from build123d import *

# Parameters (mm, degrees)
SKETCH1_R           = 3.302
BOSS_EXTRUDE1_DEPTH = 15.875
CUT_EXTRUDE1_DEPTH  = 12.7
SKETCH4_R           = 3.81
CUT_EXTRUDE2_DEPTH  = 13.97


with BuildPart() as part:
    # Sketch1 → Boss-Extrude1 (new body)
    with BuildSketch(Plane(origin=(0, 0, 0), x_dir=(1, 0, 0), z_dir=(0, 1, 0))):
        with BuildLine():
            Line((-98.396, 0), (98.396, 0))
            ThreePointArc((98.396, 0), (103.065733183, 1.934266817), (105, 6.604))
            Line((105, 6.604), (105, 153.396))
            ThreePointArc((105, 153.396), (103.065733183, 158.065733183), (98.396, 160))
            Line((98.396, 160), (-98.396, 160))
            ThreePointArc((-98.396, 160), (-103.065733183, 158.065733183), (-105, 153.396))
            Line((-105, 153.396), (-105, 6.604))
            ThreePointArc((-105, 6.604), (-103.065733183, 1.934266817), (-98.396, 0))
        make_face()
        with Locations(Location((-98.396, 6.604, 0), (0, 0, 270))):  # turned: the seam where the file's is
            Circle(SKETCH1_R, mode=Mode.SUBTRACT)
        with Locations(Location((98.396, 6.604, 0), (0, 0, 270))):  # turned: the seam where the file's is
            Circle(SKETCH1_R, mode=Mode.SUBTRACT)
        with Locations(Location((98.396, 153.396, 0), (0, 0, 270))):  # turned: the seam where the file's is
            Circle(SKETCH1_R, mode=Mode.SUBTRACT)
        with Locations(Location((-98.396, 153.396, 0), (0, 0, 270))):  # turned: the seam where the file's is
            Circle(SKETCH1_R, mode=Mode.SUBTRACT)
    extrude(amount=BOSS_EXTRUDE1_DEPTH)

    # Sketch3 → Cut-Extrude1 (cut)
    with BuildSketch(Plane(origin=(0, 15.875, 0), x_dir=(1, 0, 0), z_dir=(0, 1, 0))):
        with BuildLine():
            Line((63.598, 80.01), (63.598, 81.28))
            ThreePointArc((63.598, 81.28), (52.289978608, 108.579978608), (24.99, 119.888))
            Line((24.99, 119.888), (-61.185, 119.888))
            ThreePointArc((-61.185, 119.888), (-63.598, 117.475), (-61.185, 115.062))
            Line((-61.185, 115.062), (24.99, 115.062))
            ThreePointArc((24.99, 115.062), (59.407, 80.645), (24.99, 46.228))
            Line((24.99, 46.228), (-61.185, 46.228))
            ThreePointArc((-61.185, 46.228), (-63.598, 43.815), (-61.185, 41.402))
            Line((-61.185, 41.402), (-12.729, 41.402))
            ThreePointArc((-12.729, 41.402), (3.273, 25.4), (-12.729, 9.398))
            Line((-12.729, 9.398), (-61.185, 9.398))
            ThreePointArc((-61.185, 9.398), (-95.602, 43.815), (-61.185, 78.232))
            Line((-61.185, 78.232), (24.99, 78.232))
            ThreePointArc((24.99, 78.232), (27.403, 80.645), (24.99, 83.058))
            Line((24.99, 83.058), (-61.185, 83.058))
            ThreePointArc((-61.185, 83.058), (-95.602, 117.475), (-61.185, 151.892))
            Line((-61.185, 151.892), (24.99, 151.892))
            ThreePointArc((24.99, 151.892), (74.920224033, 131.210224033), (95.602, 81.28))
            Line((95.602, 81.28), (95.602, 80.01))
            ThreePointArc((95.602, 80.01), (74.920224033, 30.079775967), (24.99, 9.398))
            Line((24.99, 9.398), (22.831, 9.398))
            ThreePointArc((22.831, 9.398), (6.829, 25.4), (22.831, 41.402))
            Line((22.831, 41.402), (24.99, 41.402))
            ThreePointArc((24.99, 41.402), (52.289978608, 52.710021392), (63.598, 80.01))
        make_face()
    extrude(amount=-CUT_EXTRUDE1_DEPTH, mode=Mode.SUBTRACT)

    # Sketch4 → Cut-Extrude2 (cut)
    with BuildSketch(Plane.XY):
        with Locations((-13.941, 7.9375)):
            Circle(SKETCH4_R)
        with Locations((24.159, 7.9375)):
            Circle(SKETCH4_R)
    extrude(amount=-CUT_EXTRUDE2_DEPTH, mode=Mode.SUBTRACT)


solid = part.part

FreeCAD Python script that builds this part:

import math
import FreeCAD as App
import Part
import Sketcher
Q = App.Units.Quantity

doc = App.newDocument("Part")
body = doc.addObject("PartDesign::Body", "Body")

sketch1 = body.newObject("Sketcher::SketchObject", "Sketch")
sketch1.AttachmentSupport = (doc.getObject("XZ_Plane"), [""])
sketch1.MapMode = "FlatFace"
sketch1.addGeometry([
    Part.LineSegment(App.Vector(-98.4, 0, 0), App.Vector(98.4, 0, 0)),
    Part.ArcOfCircle(Part.Circle(App.Vector(98.4, -6.6, 0), App.Vector(0, 0, 1), 6.6), math.radians(0), math.radians(90)),
    Part.LineSegment(App.Vector(105, -6.6, 0), App.Vector(105, -153.4, 0)),
    Part.ArcOfCircle(Part.Circle(App.Vector(98.4, -153.4, 0), App.Vector(0, 0, 1), 6.6), math.radians(-90), math.radians(0)),
    Part.LineSegment(App.Vector(98.4, -160, 0), App.Vector(-98.4, -160, 0)),
    Part.ArcOfCircle(Part.Circle(App.Vector(-98.4, -153.4, 0), App.Vector(0, 0, 1), 6.6), math.radians(180), math.radians(270)),
    Part.LineSegment(App.Vector(-105, -153.4, 0), App.Vector(-105, -6.6, 0)),
    Part.ArcOfCircle(Part.Circle(App.Vector(-98.4, -6.6, 0), App.Vector(0, 0, 1), 6.6), math.radians(90), math.radians(180)),
    Part.Circle(App.Vector(-98.4, -6.6, 0), App.Vector(0, 0, 1), 3.3),
    Part.Circle(App.Vector(98.4, -6.6, 0), App.Vector(0, 0, 1), 3.3),
    Part.Circle(App.Vector(-98.4, -153.4, 0), App.Vector(0, 0, 1), 3.3),
    Part.Circle(App.Vector(98.4, -153.4, 0), App.Vector(0, 0, 1), 3.3),
], False)
sketch1.addConstraint([
    Sketcher.Constraint("Tangent", 0, 2, 1, 2),
    Sketcher.Constraint("Tangent", 1, 1, 2, 1),
    Sketcher.Constraint("Tangent", 2, 2, 3, 2),
    Sketcher.Constraint("Tangent", 3, 1, 4, 1),
    Sketcher.Constraint("Tangent", 4, 2, 5, 2),
    Sketcher.Constraint("Tangent", 5, 1, 6, 1),
    Sketcher.Constraint("Tangent", 6, 2, 7, 2),
    Sketcher.Constraint("Tangent", 7, 1, 0, 1),
    Sketcher.Constraint("Horizontal", 0),
    Sketcher.Constraint("Vertical", 2),
    Sketcher.Constraint("Horizontal", 4),
    Sketcher.Constraint("Vertical", 6),
    Sketcher.Constraint("Coincident", 8, 3, 7, 3),
    Sketcher.Constraint("Coincident", 9, 3, 1, 3),
    Sketcher.Constraint("Coincident", 10, 3, 5, 3),
    Sketcher.Constraint("Coincident", 11, 3, 3, 3),
    Sketcher.Constraint("Equal", 1, 3),
    Sketcher.Constraint("Equal", 3, 5),
    Sketcher.Constraint("Equal", 5, 7),
    Sketcher.Constraint("Equal", 8, 9),
    Sketcher.Constraint("Equal", 9, 10),
    Sketcher.Constraint("Equal", 10, 11),
    Sketcher.Constraint("Symmetric", 0, 2, 7, 1, -1, 1),
    Sketcher.Constraint("Diameter", 8, Q("0.26 in")),
    Sketcher.Constraint("Radius", 1, Q("0.26 in")),
    Sketcher.Constraint("DistanceX", 0, 1, 0, 2, Q("196.792 mm")),
    Sketcher.Constraint("DistanceY", 2, 2, 2, 1, Q("146.792 mm")),
])
pad1 = body.newObject("PartDesign::Pad", "Pad")
pad1.Profile = sketch1
pad1.Length = Q("0.625 in")
pad1.Reversed = True

sketch2 = body.newObject("Sketcher::SketchObject", "Sketch001")
sketch2.AttachmentSupport = (doc.getObject("XZ_Plane"), [""])
sketch2.MapMode = "FlatFace"
sketch2.AttachmentOffset = App.Placement(App.Vector(0, 0, -0.625 * 25.4), App.Rotation())
sketch2.addGeometry([
    Part.LineSegment(App.Vector(63.6, -81.3, 0), App.Vector(63.6, -80, 0)),
    Part.ArcOfCircle(Part.Circle(App.Vector(25, -80, 0), App.Vector(0, 0, 1), 38.6), math.radians(0), math.radians(90)),
    Part.LineSegment(App.Vector(25, -41.4, 0), App.Vector(22.8, -41.4, 0)),
    Part.ArcOfCircle(Part.Circle(App.Vector(22.8, -25.4, 0), App.Vector(0, 0, 1), 16), math.radians(90), math.radians(270)),
    Part.LineSegment(App.Vector(22.8, -9.4, 0), App.Vector(25, -9.4, 0)),
    Part.ArcOfCircle(Part.Circle(App.Vector(25, -80, 0), App.Vector(0, 0, 1), 70.6), math.radians(0), math.radians(90)),
    Part.LineSegment(App.Vector(95.6, -80, 0), App.Vector(95.6, -81.3, 0)),
    Part.ArcOfCircle(Part.Circle(App.Vector(25, -81.3, 0), App.Vector(0, 0, 1), 70.6), math.radians(-90), math.radians(0)),
    Part.LineSegment(App.Vector(25, -151.9, 0), App.Vector(-61.2, -151.9, 0)),
    Part.ArcOfCircle(Part.Circle(App.Vector(-61.2, -117.5, 0), App.Vector(0, 0, 1), 34.4), math.radians(90), math.radians(270)),
    Part.LineSegment(App.Vector(-61.2, -83.1, 0), App.Vector(25, -83.1, 0)),
    Part.ArcOfCircle(Part.Circle(App.Vector(25, -80.6, 0), App.Vector(0, 0, 1), 2.4), math.radians(-90), math.radians(90)),
    Part.LineSegment(App.Vector(25, -78.2, 0), App.Vector(-61.2, -78.2, 0)),
    Part.ArcOfCircle(Part.Circle(App.Vector(-61.2, -43.8, 0), App.Vector(0, 0, 1), 34.4), math.radians(90), math.radians(270)),
    Part.LineSegment(App.Vector(-61.2, -9.4, 0), App.Vector(-12.7, -9.4, 0)),
    Part.ArcOfCircle(Part.Circle(App.Vector(-12.7, -25.4, 0), App.Vector(0, 0, 1), 16), math.radians(-90), math.radians(90)),
    Part.LineSegment(App.Vector(-12.7, -41.4, 0), App.Vector(-61.2, -41.4, 0)),
    Part.ArcOfCircle(Part.Circle(App.Vector(-61.2, -43.8, 0), App.Vector(0, 0, 1), 2.4), math.radians(90), math.radians(270)),
    Part.LineSegment(App.Vector(-61.2, -46.2, 0), App.Vector(25, -46.2, 0)),
    Part.ArcOfCircle(Part.Circle(App.Vector(25, -80.6, 0), App.Vector(0, 0, 1), 34.4), math.radians(-90), math.radians(90)),
    Part.LineSegment(App.Vector(25, -115.1, 0), App.Vector(-61.2, -115.1, 0)),
    Part.ArcOfCircle(Part.Circle(App.Vector(-61.2, -117.5, 0), App.Vector(0, 0, 1), 2.4), math.radians(90), math.radians(270)),
    Part.LineSegment(App.Vector(-61.2, -119.9, 0), App.Vector(25, -119.9, 0)),
    Part.ArcOfCircle(Part.Circle(App.Vector(25, -81.3, 0), App.Vector(0, 0, 1), 38.6), math.radians(-90), math.radians(0)),
], False)
sketch2.addConstraint([
    Sketcher.Constraint("Tangent", 0, 2, 1, 1),
    Sketcher.Constraint("Tangent", 1, 2, 2, 1),
    Sketcher.Constraint("Tangent", 2, 2, 3, 2),
    Sketcher.Constraint("Tangent", 3, 1, 4, 1),
    Sketcher.Constraint("Tangent", 4, 2, 5, 2),
    Sketcher.Constraint("Tangent", 5, 1, 6, 1),
    Sketcher.Constraint("Tangent", 6, 2, 7, 2),
    Sketcher.Constraint("Tangent", 7, 1, 8, 1),
    Sketcher.Constraint("Tangent", 8, 2, 9, 2),
    Sketcher.Constraint("Tangent", 9, 1, 10, 1),
    Sketcher.Constraint("Tangent", 10, 2, 11, 1),
    Sketcher.Constraint("Tangent", 11, 2, 12, 1),
    Sketcher.Constraint("Tangent", 12, 2, 13, 2),
    Sketcher.Constraint("Tangent", 13, 1, 14, 1),
    Sketcher.Constraint("Tangent", 14, 2, 15, 2),
    Sketcher.Constraint("Tangent", 15, 1, 16, 1),
    Sketcher.Constraint("Tangent", 16, 2, 17, 1),
    Sketcher.Constraint("Tangent", 17, 2, 18, 1),
    Sketcher.Constraint("Tangent", 18, 2, 19, 2),
    Sketcher.Constraint("Tangent", 19, 1, 20, 1),
    Sketcher.Constraint("Tangent", 20, 2, 21, 1),
    Sketcher.Constraint("Tangent", 21, 2, 22, 1),
    Sketcher.Constraint("Tangent", 22, 2, 23, 1),
    Sketcher.Constraint("Tangent", 23, 2, 0, 1),
    Sketcher.Constraint("Vertical", 0),
    Sketcher.Constraint("Horizontal", 2),
    Sketcher.Constraint("Horizontal", 4),
    Sketcher.Constraint("Vertical", 6),
    Sketcher.Constraint("Horizontal", 8),
    Sketcher.Constraint("Horizontal", 10),
    Sketcher.Constraint("Horizontal", 12),
    Sketcher.Constraint("Horizontal", 14),
    Sketcher.Constraint("Horizontal", 16),
    Sketcher.Constraint("Horizontal", 18),
    Sketcher.Constraint("Horizontal", 20),
    Sketcher.Constraint("Horizontal", 22),
    Sketcher.Constraint("Coincident", 5, 3, 1, 3),
    Sketcher.Constraint("Coincident", 17, 3, 13, 3),
    Sketcher.Constraint("Coincident", 19, 3, 11, 3),
    Sketcher.Constraint("Coincident", 21, 3, 9, 3),
    Sketcher.Constraint("Coincident", 23, 3, 7, 3),
    Sketcher.Constraint("Equal", 5, 7),
    Sketcher.Constraint("Equal", 9, 13),
    Sketcher.Constraint("Equal", 11, 17),
    Sketcher.Constraint("Horizontal", 3, 3, 15, 3),
    Sketcher.Constraint("Vertical", 7, 3, 11, 3),
    Sketcher.Constraint("Vertical", 9, 3, 13, 3),
    Sketcher.Constraint("Radius", 1, Q("1.52 in")),
    Sketcher.Constraint("Radius", 3, Q("0.63 in")),
    Sketcher.Constraint("DistanceY", 3, 3, -1, 1, Q("1 in")),
    Sketcher.Constraint("Radius", 9, Q("1.355 in")),
    Sketcher.Constraint("DistanceX", 15, 3, 3, 3, Q("1.4 in")),
    Sketcher.Constraint("DistanceX", 2, 2, 2, 1, Q("0.085 in")),
    Sketcher.Constraint("DistanceX", 8, 2, 8, 1, Q("86.175 mm")),
    Sketcher.Constraint("DistanceX", -1, 1, 1, 3, Q("24.99 mm")),
])
pocket1 = body.newObject("PartDesign::Pocket", "Pocket")
pocket1.Profile = sketch2
pocket1.Length = Q("0.5 in")
pocket1.Reversed = True

sketch3 = body.newObject("Sketcher::SketchObject", "Sketch002")
sketch3.AttachmentSupport = (doc.getObject("XY_Plane"), [""])
sketch3.MapMode = "FlatFace"
sketch3.addGeometry([
    Part.Circle(App.Vector(-13.9, 7.9, 0), App.Vector(0, 0, 1), 3.8),
    Part.Circle(App.Vector(24.2, 7.9, 0), App.Vector(0, 0, 1), 3.8),
], False)
sketch3.addConstraint([
    Sketcher.Constraint("Equal", 0, 1),
    Sketcher.Constraint("Horizontal", 0, 3, 1, 3),
    Sketcher.Constraint("Diameter", 0, Q("0.3 in")),
    Sketcher.Constraint("DistanceX", 0, 3, 1, 3, Q("1.5 in")),
    Sketcher.Constraint("DistanceY", -1, 1, 0, 3, Q("0.3125 in")),
    Sketcher.Constraint("DistanceX", 0, 3, -1, 1, Q("13.941 mm")),
])
pocket2 = body.newObject("PartDesign::Pocket", "Pocket001")
pocket2.Profile = sketch3
pocket2.Length = Q("0.55 in")

doc.recompute()
